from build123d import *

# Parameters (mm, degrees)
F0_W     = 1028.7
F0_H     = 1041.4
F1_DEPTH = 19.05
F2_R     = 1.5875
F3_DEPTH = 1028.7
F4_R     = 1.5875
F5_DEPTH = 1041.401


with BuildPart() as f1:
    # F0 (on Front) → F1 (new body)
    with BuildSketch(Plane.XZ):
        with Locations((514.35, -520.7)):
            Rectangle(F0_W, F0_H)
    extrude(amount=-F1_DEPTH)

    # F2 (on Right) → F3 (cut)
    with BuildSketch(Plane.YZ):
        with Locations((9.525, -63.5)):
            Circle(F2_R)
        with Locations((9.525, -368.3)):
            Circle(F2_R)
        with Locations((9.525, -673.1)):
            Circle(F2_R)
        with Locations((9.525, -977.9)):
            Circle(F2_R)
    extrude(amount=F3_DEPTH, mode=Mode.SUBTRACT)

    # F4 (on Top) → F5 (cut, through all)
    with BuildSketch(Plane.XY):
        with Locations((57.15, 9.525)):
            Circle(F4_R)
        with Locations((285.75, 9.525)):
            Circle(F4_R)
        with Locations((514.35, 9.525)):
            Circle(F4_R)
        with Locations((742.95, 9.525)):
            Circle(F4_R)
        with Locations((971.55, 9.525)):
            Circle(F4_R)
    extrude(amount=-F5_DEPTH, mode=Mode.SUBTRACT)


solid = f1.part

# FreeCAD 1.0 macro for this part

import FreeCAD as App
import Part
import Sketcher
from FreeCAD import Vector
Q = App.Units.Quantity

doc = App.newDocument("Part")
body = doc.addObject("PartDesign::Body", "Body")

sketch1 = body.newObject("Sketcher::SketchObject", "Sketch")
sketch1.AttachmentSupport = (doc.getObject("XZ_Plane"), [""])
sketch1.MapMode = "FlatFace"
sketch1.addGeometry([
    Part.LineSegment(Vector(0, 0, 0), Vector(0, -1041, 0)),
    Part.LineSegment(Vector(0, -1041, 0), Vector(1029, -1041, 0)),
    Part.LineSegment(Vector(1029, -1041, 0), Vector(1029, 0, 0)),
    Part.LineSegment(Vector(1029, 0, 0), Vector(0, 0, 0)),
], False)
sketch1.addConstraint([
    Sketcher.Constraint("Coincident", 0, 2, 1, 1),
    Sketcher.Constraint("Coincident", 1, 2, 2, 1),
    Sketcher.Constraint("Coincident", 2, 2, 3, 1),
    Sketcher.Constraint("Coincident", 3, 2, 0, 1),
    Sketcher.Constraint("Vertical", 0),
    Sketcher.Constraint("Horizontal", 1),
    Sketcher.Constraint("Vertical", 2),
    Sketcher.Constraint("Horizontal", 3),
    Sketcher.Constraint("Coincident", 3, 2, -1, 1),
    Sketcher.Constraint("DistanceY", 0, 2, 0, 1, Q("41 in")),
    Sketcher.Constraint("DistanceX", 1, 1, 1, 2, Q("40.5 in")),
])
pad1 = body.newObject("PartDesign::Pad", "Pad")
pad1.Profile = sketch1
pad1.Length = Q("0.75 in")
pad1.Reversed = True

sketch2 = body.newObject("Sketcher::SketchObject", "Sketch001")
sketch2.AttachmentSupport = (doc.getObject("YZ_Plane"), [""])
sketch2.MapMode = "FlatFace"
sketch2.addGeometry([
    Part.Circle(Vector(9.5, -63.5, 0), Vector(0, 0, 1), 1.6),
    Part.Circle(Vector(9.5, -368.3, 0), Vector(0, 0, 1), 1.6),
    Part.Circle(Vector(9.5, -673.1, 0), Vector(0, 0, 1), 1.6),
    Part.Circle(Vector(9.5, -977.9, 0), Vector(0, 0, 1), 1.6),
], False)
sketch2.addConstraint([
    Sketcher.Constraint("Equal", 0, 1),
    Sketcher.Constraint("Equal", 1, 2),
    Sketcher.Constraint("Equal", 2, 3),
    Sketcher.Constraint("Vertical", 0, 3, 1, 3),
    Sketcher.Constraint("Vertical", 1, 3, 2, 3),
    Sketcher.Constraint("Vertical", 2, 3, 3, 3),
    Sketcher.Constraint("Diameter", 0, Q("0.125 in")),
    Sketcher.Constraint("DistanceY", 1, 3, 0, 3, Q("12 in")),
    Sketcher.Constraint("DistanceY", 2, 3, 1, 3, Q("12 in")),
    Sketcher.Constraint("DistanceY", 3, 3, 2, 3, Q("12 in")),
    Sketcher.Constraint("DistanceY", 0, 3, -1, 1, Q("2.5 in")),
    Sketcher.Constraint("DistanceX", -1, 1, 0, 3, Q("0.375 in")),
])
pocket1 = body.newObject("PartDesign::Pocket", "Pocket")
pocket1.Profile = sketch2
pocket1.Length = Q("40.5 in")
pocket1.Reversed = True

sketch3 = body.newObject("Sketcher::SketchObject", "Sketch002")
sketch3.AttachmentSupport = (doc.getObject("XY_Plane"), [""])
sketch3.MapMode = "FlatFace"
sketch3.addGeometry([
    Part.Circle(Vector(57.1, 9.5, 0), Vector(0, 0, 1), 1.6),
    Part.Circle(Vector(285.8, 9.5, 0), Vector(0, 0, 1), 1.6),
    Part.Circle(Vector(514.4, 9.5, 0), Vector(0, 0, 1), 1.6),
    Part.Circle(Vector(743, 9.5, 0), Vector(0, 0, 1), 1.6),
    Part.Circle(Vector(971.5, 9.5, 0), Vector(0, 0, 1), 1.6),
], False)
sketch3.addConstraint([
    Sketcher.Constraint("Equal", 0, 1),
    Sketcher.Constraint("Equal", 1, 2),
    Sketcher.Constraint("Equal", 2, 3),
    Sketcher.Constraint("Equal", 3, 4),
    Sketcher.Constraint("Horizontal", 0, 3, 1, 3),
    Sketcher.Constraint("Horizontal", 1, 3, 2, 3),
    Sketcher.Constraint("Horizontal", 2, 3, 3, 3),
    Sketcher.Constraint("Horizontal", 3, 3, 4, 3),
    Sketcher.Constraint("Diameter", 0, Q("0.125 in")),
    Sketcher.Constraint("DistanceX", 0, 3, 1, 3, Q("9 in")),
    Sketcher.Constraint("DistanceX", 1, 3, 2, 3, Q("9 in")),
    Sketcher.Constraint("DistanceX", 2, 3, 3, 3, Q("9 in")),
    Sketcher.Constraint("DistanceX", 3, 3, 4, 3, Q("9 in")),
    Sketcher.Constraint("DistanceX", -1, 1, 0, 3, Q("2.25 in")),
    Sketcher.Constraint("DistanceY", -1, 1, 0, 3, Q("0.375 in")),
])
pocket2 = body.newObject("PartDesign::Pocket", "Pocket001")
pocket2.Profile = sketch3
pocket2.Type = "ThroughAll"

doc.recompute()
